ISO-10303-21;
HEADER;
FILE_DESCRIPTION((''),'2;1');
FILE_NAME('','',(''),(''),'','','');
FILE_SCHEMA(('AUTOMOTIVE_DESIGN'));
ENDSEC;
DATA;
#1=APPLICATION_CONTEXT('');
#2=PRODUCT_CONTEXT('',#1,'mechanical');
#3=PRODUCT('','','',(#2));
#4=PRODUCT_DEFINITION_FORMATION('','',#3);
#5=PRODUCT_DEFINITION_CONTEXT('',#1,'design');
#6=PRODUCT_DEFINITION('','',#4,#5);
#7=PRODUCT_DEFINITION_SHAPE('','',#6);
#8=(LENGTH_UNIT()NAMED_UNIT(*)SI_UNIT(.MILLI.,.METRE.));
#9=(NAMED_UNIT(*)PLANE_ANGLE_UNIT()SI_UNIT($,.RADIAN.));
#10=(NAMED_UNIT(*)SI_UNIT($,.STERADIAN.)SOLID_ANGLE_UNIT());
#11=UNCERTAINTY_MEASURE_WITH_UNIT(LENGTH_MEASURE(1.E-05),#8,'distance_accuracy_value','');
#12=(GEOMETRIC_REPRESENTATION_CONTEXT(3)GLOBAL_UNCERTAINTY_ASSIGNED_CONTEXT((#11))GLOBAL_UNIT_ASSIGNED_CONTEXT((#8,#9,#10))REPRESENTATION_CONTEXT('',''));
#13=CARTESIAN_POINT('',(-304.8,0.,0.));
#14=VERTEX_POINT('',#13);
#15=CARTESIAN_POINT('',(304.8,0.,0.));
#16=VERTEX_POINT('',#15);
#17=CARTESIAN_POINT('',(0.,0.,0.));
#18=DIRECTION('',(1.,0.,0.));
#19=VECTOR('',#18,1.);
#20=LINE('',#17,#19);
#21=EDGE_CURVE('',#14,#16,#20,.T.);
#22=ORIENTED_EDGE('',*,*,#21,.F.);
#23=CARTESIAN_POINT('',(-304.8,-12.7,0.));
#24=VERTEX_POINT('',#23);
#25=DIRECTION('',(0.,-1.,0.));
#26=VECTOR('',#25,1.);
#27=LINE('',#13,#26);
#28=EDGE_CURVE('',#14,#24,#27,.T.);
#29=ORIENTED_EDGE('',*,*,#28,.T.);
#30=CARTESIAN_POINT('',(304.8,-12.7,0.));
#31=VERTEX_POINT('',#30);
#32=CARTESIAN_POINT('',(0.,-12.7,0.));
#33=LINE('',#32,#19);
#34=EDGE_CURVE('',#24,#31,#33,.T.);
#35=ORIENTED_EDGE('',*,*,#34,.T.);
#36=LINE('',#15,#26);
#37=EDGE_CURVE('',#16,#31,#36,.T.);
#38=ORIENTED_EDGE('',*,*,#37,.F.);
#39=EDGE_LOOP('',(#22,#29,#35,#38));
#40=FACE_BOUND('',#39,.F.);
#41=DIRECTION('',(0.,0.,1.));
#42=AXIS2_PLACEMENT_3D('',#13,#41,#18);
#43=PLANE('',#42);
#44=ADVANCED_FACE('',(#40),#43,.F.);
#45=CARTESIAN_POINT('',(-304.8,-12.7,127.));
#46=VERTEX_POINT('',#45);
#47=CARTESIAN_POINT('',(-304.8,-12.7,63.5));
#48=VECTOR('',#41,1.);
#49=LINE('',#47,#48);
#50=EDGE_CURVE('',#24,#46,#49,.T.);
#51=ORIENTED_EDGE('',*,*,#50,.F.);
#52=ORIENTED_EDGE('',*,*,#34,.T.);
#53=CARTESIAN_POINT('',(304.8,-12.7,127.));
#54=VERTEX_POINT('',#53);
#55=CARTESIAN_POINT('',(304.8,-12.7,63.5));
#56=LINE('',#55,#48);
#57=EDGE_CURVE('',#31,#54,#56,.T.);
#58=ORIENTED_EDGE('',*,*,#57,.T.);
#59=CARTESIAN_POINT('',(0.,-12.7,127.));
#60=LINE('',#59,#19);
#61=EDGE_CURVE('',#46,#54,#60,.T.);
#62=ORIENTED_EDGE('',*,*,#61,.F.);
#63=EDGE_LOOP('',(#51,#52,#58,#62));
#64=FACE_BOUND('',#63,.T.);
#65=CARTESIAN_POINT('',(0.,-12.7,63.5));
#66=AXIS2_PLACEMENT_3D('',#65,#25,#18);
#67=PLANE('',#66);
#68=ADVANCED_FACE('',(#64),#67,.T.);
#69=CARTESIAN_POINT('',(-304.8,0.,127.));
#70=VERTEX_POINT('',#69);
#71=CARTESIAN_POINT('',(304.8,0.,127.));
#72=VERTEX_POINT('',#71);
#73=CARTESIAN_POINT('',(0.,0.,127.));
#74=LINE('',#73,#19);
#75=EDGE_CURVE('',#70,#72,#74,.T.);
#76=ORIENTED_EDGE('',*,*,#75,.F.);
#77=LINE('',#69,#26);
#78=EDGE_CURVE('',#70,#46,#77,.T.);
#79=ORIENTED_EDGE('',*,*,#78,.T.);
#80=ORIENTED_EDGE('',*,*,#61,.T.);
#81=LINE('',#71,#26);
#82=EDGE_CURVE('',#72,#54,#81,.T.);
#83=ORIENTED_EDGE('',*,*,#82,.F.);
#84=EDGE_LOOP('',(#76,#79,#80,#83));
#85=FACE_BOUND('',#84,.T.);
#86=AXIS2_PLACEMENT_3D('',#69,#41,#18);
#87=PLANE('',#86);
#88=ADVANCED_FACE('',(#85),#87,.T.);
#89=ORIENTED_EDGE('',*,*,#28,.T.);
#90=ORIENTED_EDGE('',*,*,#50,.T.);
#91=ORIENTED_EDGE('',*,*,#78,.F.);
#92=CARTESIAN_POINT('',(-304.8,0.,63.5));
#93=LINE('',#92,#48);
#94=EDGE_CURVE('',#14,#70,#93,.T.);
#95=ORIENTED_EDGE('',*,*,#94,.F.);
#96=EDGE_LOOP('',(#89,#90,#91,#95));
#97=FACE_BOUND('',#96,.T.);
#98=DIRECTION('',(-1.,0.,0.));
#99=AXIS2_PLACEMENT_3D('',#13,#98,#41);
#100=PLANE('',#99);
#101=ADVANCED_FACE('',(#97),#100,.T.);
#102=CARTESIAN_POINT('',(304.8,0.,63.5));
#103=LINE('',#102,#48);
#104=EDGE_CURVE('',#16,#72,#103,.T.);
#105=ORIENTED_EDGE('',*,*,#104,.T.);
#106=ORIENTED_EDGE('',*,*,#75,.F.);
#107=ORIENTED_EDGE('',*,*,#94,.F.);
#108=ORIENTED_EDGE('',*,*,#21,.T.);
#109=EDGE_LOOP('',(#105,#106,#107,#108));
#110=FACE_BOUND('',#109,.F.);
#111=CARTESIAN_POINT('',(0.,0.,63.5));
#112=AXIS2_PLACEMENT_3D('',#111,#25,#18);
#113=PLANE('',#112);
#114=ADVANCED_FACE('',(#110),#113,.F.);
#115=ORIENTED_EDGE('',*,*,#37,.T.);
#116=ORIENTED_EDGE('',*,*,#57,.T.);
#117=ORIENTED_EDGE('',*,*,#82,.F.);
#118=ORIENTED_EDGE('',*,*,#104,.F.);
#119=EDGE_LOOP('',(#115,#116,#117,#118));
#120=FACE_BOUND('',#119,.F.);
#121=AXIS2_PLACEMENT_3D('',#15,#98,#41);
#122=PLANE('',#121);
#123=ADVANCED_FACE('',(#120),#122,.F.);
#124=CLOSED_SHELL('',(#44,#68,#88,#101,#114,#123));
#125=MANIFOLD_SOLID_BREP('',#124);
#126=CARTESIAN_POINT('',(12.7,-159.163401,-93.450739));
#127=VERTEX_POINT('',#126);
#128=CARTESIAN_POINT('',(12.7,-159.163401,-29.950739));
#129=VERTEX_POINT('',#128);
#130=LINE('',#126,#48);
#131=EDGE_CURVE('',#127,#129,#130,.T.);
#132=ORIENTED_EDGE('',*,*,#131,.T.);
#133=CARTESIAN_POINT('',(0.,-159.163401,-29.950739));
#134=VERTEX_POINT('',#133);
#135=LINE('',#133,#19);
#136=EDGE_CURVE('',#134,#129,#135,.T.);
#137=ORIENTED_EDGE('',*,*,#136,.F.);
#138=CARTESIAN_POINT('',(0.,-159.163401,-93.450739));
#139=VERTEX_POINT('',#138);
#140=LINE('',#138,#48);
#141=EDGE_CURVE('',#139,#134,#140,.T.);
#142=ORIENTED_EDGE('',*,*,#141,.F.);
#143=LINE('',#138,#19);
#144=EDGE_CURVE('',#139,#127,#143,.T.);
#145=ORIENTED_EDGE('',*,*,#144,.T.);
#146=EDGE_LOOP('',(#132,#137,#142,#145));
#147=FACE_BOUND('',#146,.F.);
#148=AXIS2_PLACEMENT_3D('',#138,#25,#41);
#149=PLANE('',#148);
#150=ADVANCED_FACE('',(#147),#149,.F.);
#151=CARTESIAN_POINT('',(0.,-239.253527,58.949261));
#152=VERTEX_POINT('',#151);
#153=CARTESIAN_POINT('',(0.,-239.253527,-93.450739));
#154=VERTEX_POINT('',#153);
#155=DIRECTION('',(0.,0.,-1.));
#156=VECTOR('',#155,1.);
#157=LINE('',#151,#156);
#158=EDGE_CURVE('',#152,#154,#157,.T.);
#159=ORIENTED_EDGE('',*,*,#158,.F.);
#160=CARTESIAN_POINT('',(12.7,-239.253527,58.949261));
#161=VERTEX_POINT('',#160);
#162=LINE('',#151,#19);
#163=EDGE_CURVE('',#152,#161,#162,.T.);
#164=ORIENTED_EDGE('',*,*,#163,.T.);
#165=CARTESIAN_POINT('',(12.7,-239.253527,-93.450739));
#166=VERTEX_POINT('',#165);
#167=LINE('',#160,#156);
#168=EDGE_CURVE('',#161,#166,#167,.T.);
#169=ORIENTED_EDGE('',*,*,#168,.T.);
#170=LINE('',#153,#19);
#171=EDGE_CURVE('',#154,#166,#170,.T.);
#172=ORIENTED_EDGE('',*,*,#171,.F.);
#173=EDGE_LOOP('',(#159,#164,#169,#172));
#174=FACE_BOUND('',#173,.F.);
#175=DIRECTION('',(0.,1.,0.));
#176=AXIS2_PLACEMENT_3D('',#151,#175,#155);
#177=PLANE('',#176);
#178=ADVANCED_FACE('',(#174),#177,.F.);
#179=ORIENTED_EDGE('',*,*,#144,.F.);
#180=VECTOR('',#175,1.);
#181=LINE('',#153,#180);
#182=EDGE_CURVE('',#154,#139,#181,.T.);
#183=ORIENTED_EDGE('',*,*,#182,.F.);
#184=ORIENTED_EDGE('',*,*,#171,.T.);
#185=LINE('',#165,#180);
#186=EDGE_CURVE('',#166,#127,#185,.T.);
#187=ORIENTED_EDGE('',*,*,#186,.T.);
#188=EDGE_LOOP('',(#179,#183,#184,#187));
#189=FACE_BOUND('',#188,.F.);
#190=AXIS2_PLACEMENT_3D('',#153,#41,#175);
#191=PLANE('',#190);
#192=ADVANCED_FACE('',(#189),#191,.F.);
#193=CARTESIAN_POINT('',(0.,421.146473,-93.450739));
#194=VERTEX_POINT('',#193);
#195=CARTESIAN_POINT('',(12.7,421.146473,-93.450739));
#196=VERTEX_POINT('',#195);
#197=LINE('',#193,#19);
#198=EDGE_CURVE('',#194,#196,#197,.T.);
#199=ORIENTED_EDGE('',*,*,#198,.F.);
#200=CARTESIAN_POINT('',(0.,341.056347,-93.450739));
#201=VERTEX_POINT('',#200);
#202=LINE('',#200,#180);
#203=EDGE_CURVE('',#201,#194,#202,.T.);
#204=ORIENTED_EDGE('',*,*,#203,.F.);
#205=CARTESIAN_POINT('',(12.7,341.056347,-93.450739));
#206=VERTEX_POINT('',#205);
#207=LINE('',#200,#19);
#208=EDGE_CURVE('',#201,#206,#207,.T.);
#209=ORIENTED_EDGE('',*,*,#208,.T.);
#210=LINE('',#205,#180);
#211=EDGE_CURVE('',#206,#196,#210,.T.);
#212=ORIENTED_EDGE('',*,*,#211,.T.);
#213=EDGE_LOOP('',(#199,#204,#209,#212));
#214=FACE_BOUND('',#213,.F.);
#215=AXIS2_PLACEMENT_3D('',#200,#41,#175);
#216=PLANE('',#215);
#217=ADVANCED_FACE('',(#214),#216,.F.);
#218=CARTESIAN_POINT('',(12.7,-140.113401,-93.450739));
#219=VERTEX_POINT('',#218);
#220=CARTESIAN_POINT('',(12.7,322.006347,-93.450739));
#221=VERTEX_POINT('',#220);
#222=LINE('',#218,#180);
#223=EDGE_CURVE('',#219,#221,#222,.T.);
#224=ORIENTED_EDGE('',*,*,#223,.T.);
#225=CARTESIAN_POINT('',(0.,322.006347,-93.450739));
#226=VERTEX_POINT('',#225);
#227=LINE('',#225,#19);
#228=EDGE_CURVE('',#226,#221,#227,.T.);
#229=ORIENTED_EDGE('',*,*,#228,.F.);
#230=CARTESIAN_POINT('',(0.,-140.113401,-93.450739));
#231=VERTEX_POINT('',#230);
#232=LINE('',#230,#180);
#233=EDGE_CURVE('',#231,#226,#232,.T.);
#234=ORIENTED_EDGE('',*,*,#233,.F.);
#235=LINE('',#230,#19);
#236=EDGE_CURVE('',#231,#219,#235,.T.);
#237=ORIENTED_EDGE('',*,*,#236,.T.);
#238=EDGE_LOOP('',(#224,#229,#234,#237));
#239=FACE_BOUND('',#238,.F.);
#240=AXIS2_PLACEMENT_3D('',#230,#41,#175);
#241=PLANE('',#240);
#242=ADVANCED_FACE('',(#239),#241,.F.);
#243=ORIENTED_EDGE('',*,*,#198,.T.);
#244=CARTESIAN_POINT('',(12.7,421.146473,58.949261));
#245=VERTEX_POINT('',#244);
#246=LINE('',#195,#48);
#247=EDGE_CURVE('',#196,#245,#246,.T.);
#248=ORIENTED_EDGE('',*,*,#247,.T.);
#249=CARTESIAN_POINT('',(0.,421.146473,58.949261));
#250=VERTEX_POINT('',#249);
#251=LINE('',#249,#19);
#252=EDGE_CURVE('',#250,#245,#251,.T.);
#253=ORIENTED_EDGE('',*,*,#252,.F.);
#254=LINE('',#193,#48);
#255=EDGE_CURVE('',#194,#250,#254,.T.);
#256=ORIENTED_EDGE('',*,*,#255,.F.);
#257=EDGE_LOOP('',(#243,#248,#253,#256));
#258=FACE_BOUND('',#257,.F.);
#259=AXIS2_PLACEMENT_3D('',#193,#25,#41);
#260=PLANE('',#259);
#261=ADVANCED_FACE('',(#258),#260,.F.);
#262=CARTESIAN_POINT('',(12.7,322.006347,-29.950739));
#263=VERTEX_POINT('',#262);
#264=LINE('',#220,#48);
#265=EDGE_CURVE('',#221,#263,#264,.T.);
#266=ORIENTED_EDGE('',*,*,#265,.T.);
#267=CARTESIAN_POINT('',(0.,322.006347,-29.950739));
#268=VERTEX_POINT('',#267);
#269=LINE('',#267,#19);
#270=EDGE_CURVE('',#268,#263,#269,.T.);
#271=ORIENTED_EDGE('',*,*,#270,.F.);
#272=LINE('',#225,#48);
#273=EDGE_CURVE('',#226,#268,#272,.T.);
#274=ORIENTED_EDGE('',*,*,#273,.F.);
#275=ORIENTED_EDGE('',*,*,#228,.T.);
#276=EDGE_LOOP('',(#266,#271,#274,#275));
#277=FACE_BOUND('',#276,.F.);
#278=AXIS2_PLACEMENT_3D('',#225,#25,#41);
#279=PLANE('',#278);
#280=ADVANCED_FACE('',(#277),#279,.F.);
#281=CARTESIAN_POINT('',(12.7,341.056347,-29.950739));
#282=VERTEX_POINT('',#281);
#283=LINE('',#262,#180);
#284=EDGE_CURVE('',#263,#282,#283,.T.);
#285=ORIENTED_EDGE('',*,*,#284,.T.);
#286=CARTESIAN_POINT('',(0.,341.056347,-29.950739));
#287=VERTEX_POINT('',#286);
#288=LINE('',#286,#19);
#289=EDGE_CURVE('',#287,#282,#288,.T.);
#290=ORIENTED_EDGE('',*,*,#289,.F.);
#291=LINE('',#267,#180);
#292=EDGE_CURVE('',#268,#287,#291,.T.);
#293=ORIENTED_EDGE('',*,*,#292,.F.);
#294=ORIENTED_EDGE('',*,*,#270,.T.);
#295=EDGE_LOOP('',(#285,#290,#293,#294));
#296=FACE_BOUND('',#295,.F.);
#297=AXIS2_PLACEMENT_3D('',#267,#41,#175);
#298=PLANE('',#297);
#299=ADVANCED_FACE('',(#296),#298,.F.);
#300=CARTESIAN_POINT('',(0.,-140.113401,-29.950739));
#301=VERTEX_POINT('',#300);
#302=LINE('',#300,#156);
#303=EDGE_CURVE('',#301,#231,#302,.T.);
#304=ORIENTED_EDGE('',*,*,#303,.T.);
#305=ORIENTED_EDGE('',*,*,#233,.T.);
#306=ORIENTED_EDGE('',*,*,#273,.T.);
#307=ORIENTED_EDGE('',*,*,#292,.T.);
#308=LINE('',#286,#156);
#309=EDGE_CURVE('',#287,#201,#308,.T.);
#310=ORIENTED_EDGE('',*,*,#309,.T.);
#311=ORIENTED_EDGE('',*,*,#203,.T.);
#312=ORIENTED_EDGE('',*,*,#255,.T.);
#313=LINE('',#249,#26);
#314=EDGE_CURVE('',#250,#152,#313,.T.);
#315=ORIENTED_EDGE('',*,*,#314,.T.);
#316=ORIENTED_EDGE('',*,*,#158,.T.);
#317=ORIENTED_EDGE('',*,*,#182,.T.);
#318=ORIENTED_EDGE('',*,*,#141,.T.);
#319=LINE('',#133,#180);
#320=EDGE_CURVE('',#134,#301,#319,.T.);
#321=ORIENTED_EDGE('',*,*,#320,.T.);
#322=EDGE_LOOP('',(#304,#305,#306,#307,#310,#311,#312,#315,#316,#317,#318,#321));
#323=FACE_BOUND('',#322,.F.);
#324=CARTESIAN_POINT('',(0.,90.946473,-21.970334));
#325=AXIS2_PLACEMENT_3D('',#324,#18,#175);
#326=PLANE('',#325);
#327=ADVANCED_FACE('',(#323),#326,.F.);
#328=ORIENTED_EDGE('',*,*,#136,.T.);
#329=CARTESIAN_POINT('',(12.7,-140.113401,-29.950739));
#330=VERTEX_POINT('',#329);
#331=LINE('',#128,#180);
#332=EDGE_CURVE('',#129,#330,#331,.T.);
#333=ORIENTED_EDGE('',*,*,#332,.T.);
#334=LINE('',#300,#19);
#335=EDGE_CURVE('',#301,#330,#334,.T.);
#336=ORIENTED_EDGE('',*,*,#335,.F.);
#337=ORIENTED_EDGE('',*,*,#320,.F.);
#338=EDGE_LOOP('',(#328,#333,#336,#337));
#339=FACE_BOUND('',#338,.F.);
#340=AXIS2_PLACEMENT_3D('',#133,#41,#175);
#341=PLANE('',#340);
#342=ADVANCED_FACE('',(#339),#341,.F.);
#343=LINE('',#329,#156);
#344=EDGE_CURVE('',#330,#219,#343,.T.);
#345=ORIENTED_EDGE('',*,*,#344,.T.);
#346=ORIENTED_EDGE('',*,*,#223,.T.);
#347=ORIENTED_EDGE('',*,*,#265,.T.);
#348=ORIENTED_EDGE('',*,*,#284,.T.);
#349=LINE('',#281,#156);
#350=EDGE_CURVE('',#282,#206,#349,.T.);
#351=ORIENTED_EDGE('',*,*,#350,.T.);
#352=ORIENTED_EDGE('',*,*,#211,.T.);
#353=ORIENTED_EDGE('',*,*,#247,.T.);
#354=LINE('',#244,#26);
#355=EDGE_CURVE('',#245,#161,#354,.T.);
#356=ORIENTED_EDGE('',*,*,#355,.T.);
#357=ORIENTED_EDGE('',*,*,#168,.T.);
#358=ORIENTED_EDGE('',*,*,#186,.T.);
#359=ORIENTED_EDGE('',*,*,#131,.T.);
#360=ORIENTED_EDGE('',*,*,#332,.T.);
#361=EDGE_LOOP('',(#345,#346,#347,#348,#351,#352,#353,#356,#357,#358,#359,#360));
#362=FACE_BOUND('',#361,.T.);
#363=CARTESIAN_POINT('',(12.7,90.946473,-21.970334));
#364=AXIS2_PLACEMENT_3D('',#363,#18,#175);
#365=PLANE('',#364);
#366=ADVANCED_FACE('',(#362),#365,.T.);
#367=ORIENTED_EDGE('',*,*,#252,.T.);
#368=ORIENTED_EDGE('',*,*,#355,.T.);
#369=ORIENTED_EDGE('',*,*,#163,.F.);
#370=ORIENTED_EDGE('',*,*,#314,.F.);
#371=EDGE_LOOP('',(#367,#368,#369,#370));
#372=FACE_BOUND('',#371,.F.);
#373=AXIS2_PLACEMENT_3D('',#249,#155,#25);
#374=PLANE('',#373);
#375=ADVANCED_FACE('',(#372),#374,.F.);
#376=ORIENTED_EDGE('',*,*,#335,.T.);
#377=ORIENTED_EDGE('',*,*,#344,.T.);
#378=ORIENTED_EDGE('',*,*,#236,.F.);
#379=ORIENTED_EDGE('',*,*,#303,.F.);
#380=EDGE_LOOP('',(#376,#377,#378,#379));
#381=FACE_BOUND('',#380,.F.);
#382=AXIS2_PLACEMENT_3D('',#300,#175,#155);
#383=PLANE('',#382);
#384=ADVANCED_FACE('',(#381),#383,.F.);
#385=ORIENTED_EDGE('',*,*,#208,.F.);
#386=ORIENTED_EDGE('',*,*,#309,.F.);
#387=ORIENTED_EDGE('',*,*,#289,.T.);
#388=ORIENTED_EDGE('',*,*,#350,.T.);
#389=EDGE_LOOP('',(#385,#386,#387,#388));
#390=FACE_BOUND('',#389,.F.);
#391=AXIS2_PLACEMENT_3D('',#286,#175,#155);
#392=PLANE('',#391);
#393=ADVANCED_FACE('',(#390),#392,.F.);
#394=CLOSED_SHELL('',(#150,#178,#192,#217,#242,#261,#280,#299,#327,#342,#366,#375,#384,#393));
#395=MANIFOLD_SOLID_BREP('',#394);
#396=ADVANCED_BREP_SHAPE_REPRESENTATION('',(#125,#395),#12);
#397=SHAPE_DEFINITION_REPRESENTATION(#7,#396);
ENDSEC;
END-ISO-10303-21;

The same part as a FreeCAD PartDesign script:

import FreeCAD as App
import Part
import Sketcher

V = App.Vector
Q = App.Units.Quantity


def add_polygon(sketch, points):
    """Adds a closed chain of lines whose ends are joined by coincident constraints."""
    first, n = sketch.GeometryCount, len(points)
    for a, b in zip(points, points[1:] + points[:1]):
        sketch.addGeometry(Part.LineSegment(App.Vector(*a, 0), App.Vector(*b, 0)), False)
    for i in range(n):
        sketch.addConstraint(Sketcher.Constraint("Coincident", first + i, 2, first + (i + 1) % n, 1))

doc = App.newDocument("Part")
params = doc.addObject("Spreadsheet::Sheet", "Params")
for row, (alias, value) in enumerate([
    ("sketch1_width", "24 in"),
    ("sketch1_height", "5 in"),
    ("pad1_length", "0.5 in"),
    ("sketch2_width", "26 in"),
    ("sketch2_height", "6 in"),
    ("sketch2_height2", "2.5 in"),
    ("sketch2_width2", "0.75 in"),
    ("pad2_length", "0.5 in"),
], start=1):
    params.set(f"A{row}", alias)
    params.set(f"B{row}", "=" + value)
    params.setAlias(f"B{row}", alias)

body = doc.addObject("PartDesign::Body", "Body")

# Sketch on XZ plane
sketch1 = body.newObject("Sketcher::SketchObject", "Sketch")
sketch1.AttachmentSupport = (doc.getObject("XZ_Plane"), [""])
sketch1.MapMode = "FlatFace"
add_polygon(sketch1, [(-305, 127), (-305, 0), (305, 0), (305, 127)])  # lines 0-3
sketch1.addConstraint([
    Sketcher.Constraint("Vertical", 0),
    Sketcher.Constraint("Horizontal", 1),
    Sketcher.Constraint("Vertical", 2),
    Sketcher.Constraint("Horizontal", 3),
    Sketcher.Constraint("Symmetric", 0, 2, 1, 2, -1, 1),
    Sketcher.Constraint("DistanceX", 1, 1, 1, 2, Q("24 in")),
    Sketcher.Constraint("DistanceY", 0, 2, 0, 1, Q("5 in")),
])
sketch1.setExpression("Constraints[9]", "Params.sketch1_width")
sketch1.setExpression("Constraints[10]", "Params.sketch1_height")
pad1 = body.newObject("PartDesign::Pad", "Pad")
pad1.Profile = sketch1
pad1.setExpression("Length", "Params.pad1_length")
body2 = doc.addObject("PartDesign::Body", "Body001")

# Sketch on YZ plane
sketch2 = body2.newObject("Sketcher::SketchObject", "Sketch001")
sketch2.AttachmentSupport = (doc.getObject("YZ_Plane001"), [""])
sketch2.MapMode = "FlatFace"
add_polygon(sketch2, [(421, -93), (421, 59), (-239, 59), (-239, -93), (-159, -93), (-159, -30), (-140, -30), (-140, -93), (322, -93), (322, -30), (341, -30), (341, -93)])  # lines 0-11
sketch2.addConstraint([
    Sketcher.Constraint("Vertical", 0),
    Sketcher.Constraint("Horizontal", 1),
    Sketcher.Constraint("Vertical", 2),
    Sketcher.Constraint("Horizontal", 3),
    Sketcher.Constraint("Vertical", 4),
    Sketcher.Constraint("Horizontal", 5),
    Sketcher.Constraint("Vertical", 6),
    Sketcher.Constraint("Horizontal", 7),
    Sketcher.Constraint("Vertical", 8),
    Sketcher.Constraint("Horizontal", 9),
    Sketcher.Constraint("Vertical", 10),
    Sketcher.Constraint("Horizontal", 11),
    Sketcher.Constraint("Horizontal", 3, 2, 6, 2),
    Sketcher.Constraint("Horizontal", 5, 2, 8, 2),
    Sketcher.Constraint("Horizontal", 7, 2, 10, 2),
    Sketcher.Constraint("Equal", 5, 9),
    Sketcher.Constraint("Equal", 3, 11),
    Sketcher.Constraint("DistanceX", 1, 2, 1, 1, Q("26 in")),
    Sketcher.Constraint("DistanceY", 0, 1, 0, 2, Q("6 in")),
    Sketcher.Constraint("DistanceY", 4, 1, 4, 2, Q("2.5 in")),
    Sketcher.Constraint("DistanceX", 5, 1, 5, 2, Q("0.75 in")),
    Sketcher.Constraint("DistanceX", 7, 1, 7, 2, Q("462.119748 mm")),
    Sketcher.Constraint("DistanceX", 3, 2, -1, 1, Q("159.163401 mm")),
    Sketcher.Constraint("DistanceY", -1, 1, 0, 2, Q("58.949261 mm")),
])
sketch2.setExpression("Constraints[29]", "Params.sketch2_width")
sketch2.setExpression("Constraints[30]", "Params.sketch2_height")
sketch2.setExpression("Constraints[31]", "Params.sketch2_height2")
sketch2.setExpression("Constraints[32]", "Params.sketch2_width2")
pad2 = body2.newObject("PartDesign::Pad", "Pad001")
pad2.Profile = sketch2
pad2.setExpression("Length", "Params.pad2_length")

doc.recompute()
